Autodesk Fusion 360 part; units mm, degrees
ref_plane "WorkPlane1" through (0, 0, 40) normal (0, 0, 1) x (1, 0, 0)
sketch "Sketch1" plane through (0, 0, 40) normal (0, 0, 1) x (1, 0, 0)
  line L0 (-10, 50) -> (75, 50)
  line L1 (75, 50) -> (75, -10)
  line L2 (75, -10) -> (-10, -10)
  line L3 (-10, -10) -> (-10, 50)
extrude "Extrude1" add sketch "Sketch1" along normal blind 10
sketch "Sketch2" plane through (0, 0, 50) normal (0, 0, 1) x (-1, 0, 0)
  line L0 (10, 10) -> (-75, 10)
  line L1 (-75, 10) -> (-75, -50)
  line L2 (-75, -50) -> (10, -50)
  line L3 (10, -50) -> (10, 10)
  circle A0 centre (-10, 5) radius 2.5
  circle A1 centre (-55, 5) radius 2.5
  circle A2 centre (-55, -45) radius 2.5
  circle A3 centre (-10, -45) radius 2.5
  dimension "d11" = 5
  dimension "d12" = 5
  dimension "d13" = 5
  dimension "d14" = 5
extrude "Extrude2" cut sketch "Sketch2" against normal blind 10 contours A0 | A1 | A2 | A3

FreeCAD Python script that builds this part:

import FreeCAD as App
import Part
import Sketcher
Q = App.Units.Quantity


def add_polygon(sketch, points):
    """Adds a closed chain of lines whose ends are joined by coincident constraints."""
    first, n = sketch.GeometryCount, len(points)
    for a, b in zip(points, points[1:] + points[:1]):
        sketch.addGeometry(Part.LineSegment(App.Vector(*a, 0), App.Vector(*b, 0)), False)
    for i in range(n):
        sketch.addConstraint(Sketcher.Constraint("Coincident", first + i, 2, first + (i + 1) % n, 1))

doc = App.newDocument("Part")
body = doc.addObject("PartDesign::Body", "Body")

# Sketch on XY plane
sketch1 = body.newObject("Sketcher::SketchObject", "Sketch")
sketch1.AttachmentSupport = (doc.getObject("XY_Plane"), [""])
sketch1.MapMode = "FlatFace"
sketch1.AttachmentOffset = App.Placement(App.Vector(0, 0, 40), App.Rotation())
add_polygon(sketch1, [(75, 50), (-10, 50), (-10, -10), (75, -10)])  # lines 0-3
sketch1.addConstraint([
    Sketcher.Constraint("Horizontal", 0),
    Sketcher.Constraint("Vertical", 1),
    Sketcher.Constraint("Horizontal", 2),
    Sketcher.Constraint("Vertical", 3),
    Sketcher.Constraint("DistanceX", 0, 2, 0, 1, Q("85 mm")),
    Sketcher.Constraint("DistanceY", 1, 2, 1, 1, Q("60 mm")),
    Sketcher.Constraint("DistanceX", 0, 2, -1, 1, Q("10 mm")),
    Sketcher.Constraint("DistanceY", -1, 1, 0, 2, Q("50 mm")),
])
pad1 = body.newObject("PartDesign::Pad", "Pad")
pad1.Profile = sketch1
pad1.Length = 10

# Sketch on XY plane
sketch2 = body.newObject("Sketcher::SketchObject", "Sketch001")
sketch2.AttachmentSupport = (doc.getObject("XY_Plane"), [""])
sketch2.MapMode = "FlatFace"
sketch2.AttachmentOffset = App.Placement(App.Vector(0, 0, 50), App.Rotation())
sketch2.addGeometry([
    Part.Circle(App.Vector(10, -5, 0), App.Vector(0, 0, 1), 2.5),
    Part.Circle(App.Vector(55, -5, 0), App.Vector(0, 0, 1), 2.5),
    Part.Circle(App.Vector(55, 45, 0), App.Vector(0, 0, 1), 2.5),
    Part.Circle(App.Vector(10, 45, 0), App.Vector(0, 0, 1), 2.5),
], False)
sketch2.addConstraint([
    Sketcher.Constraint("Equal", 0, 1),
    Sketcher.Constraint("Equal", 1, 2),
    Sketcher.Constraint("Equal", 2, 3),
    Sketcher.Constraint("Horizontal", 0, 3, 1, 3),
    Sketcher.Constraint("Horizontal", 2, 3, 3, 3),
    Sketcher.Constraint("Vertical", 1, 3, 2, 3),
    Sketcher.Constraint("Vertical", 0, 3, 3, 3),
    Sketcher.Constraint("Diameter", 0, Q("5 mm")),
    Sketcher.Constraint("DistanceY", 0, 3, -1, 1, Q("5 mm")),
    Sketcher.Constraint("DistanceX", -1, 1, 0, 3, Q("10 mm")),
    Sketcher.Constraint("DistanceX", -1, 1, 1, 3, Q("55 mm")),
    Sketcher.Constraint("DistanceY", -1, 1, 2, 3, Q("45 mm")),
])
pocket1 = body.newObject("PartDesign::Pocket", "Pocket")
pocket1.Profile = sketch2
pocket1.Length = 10

doc.recompute()
